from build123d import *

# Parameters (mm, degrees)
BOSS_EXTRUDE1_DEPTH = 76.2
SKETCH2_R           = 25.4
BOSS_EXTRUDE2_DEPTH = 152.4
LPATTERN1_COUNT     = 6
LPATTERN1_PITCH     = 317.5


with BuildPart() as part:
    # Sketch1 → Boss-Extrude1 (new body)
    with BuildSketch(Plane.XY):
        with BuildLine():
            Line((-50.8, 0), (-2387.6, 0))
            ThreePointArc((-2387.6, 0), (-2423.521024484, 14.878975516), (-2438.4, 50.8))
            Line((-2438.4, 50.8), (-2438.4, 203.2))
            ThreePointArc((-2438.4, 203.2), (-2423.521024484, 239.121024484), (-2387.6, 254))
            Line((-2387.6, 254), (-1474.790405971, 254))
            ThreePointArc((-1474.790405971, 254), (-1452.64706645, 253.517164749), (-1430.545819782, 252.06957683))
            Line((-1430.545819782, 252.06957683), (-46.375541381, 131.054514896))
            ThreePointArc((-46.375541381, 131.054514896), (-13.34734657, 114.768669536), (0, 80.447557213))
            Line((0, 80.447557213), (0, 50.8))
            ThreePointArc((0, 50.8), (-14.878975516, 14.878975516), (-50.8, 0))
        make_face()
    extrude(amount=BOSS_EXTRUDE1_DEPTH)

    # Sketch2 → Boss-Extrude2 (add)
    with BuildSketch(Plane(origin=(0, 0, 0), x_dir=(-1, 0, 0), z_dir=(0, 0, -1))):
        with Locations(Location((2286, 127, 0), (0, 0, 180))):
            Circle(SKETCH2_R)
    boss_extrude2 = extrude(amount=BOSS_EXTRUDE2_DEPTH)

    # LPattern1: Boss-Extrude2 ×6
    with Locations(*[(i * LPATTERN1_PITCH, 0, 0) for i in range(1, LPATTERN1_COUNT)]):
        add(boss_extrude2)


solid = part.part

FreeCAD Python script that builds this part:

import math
import FreeCAD as App
import Part
import Sketcher
Q = App.Units.Quantity

doc = App.newDocument("Part")
body = doc.addObject("PartDesign::Body", "Body")

sketch1 = body.newObject("Sketcher::SketchObject", "Sketch")
sketch1.AttachmentSupport = (doc.getObject("XY_Plane"), [""])
sketch1.MapMode = "FlatFace"
sketch1.addGeometry(Part.LineSegment(App.Vector(-2388, 0, 0), App.Vector(-51, 0, 0)), False)
sketch1.addGeometry(Part.ArcOfCircle(Part.Circle(App.Vector(-51, 51, 0), App.Vector(0, 0, 1), 51), math.radians(-90), math.radians(0)), False)
sketch1.addGeometry(Part.LineSegment(App.Vector(0, 51, 0), App.Vector(0, 80, 0)), False)
sketch1.addGeometry(Part.ArcOfCircle(Part.Circle(App.Vector(-51, 80, 0), App.Vector(0, 0, 1), 51), math.radians(0), math.radians(85)), False)
sketch1.addGeometry(Part.LineSegment(App.Vector(-46, 131, 0), App.Vector(-1431, 252, 0)), False)
sketch1.addGeometry(Part.ArcOfCircle(Part.Circle(App.Vector(-1475, -254, 0), App.Vector(0, 0, 1), 508), math.radians(85), math.radians(90)), False)
sketch1.addGeometry(Part.LineSegment(App.Vector(-1475, 254, 0), App.Vector(-2388, 254, 0)), False)
sketch1.addGeometry(Part.ArcOfCircle(Part.Circle(App.Vector(-2388, 203, 0), App.Vector(0, 0, 1), 51), math.radians(90), math.radians(180)), False)
sketch1.addGeometry(Part.LineSegment(App.Vector(-2438, 203, 0), App.Vector(-2438, 51, 0)), False)
sketch1.addGeometry(Part.ArcOfCircle(Part.Circle(App.Vector(-2388, 51, 0), App.Vector(0, 0, 1), 51), math.radians(-180), math.radians(-90)), False)
sketch1.addConstraint(Sketcher.Constraint("Tangent", 0, 2, 1, 1))
sketch1.addConstraint(Sketcher.Constraint("Tangent", 1, 2, 2, 1))
sketch1.addConstraint(Sketcher.Constraint("Tangent", 2, 2, 3, 1))
sketch1.addConstraint(Sketcher.Constraint("Tangent", 3, 2, 4, 1))
sketch1.addConstraint(Sketcher.Constraint("Tangent", 4, 2, 5, 1))
sketch1.addConstraint(Sketcher.Constraint("Tangent", 5, 2, 6, 1))
sketch1.addConstraint(Sketcher.Constraint("Tangent", 6, 2, 7, 1))
sketch1.addConstraint(Sketcher.Constraint("Tangent", 7, 2, 8, 1))
sketch1.addConstraint(Sketcher.Constraint("Tangent", 8, 2, 9, 1))
sketch1.addConstraint(Sketcher.Constraint("Tangent", 9, 2, 0, 1))
sketch1.addConstraint(Sketcher.Constraint("Horizontal", 0))
sketch1.addConstraint(Sketcher.Constraint("Vertical", 2))
sketch1.addConstraint(Sketcher.Constraint("Horizontal", 6))
sketch1.addConstraint(Sketcher.Constraint("Vertical", 8))
sketch1.addConstraint(Sketcher.Constraint("Equal", 1, 3))
sketch1.addConstraint(Sketcher.Constraint("Equal", 3, 7))
sketch1.addConstraint(Sketcher.Constraint("Equal", 7, 9))
sketch1.addConstraint(Sketcher.Constraint("PointOnObject", 0, 2, -1))
sketch1.addConstraint(Sketcher.Constraint("PointOnObject", 1, 2, -2))
sketch1.addConstraint(Sketcher.Constraint("Radius", 1, Q("2 in")))
sketch1.addConstraint(Sketcher.Constraint("Radius", 5, Q("20 in")))
sketch1.addConstraint(Sketcher.Constraint("DistanceX", 0, 1, 0, 2, Q("92 in")))
sketch1.addConstraint(Sketcher.Constraint("DistanceY", 8, 2, 8, 1, Q("6 in")))
sketch1.addConstraint(Sketcher.Constraint("DistanceX", 6, 2, 6, 1, Q("912.809594 mm")))
sketch1.addConstraint(Sketcher.Constraint("DistanceY", 2, 1, 2, 2, Q("29.647557 mm")))
pad1 = body.newObject("PartDesign::Pad", "Pad")
pad1.Profile = sketch1
pad1.Length = Q("3 in")

sketch2 = body.newObject("Sketcher::SketchObject", "Sketch001")
sketch2.AttachmentSupport = (doc.getObject("XY_Plane"), [""])
sketch2.MapMode = "FlatFace"
sketch2.addGeometry(Part.Circle(App.Vector(-2286, 127, 0), App.Vector(0, 0, 1), 25), False)
sketch2.addConstraint(Sketcher.Constraint("Diameter", 0, Q("2 in")))
sketch2.addConstraint(Sketcher.Constraint("DistanceX", 0, 3, -1, 1, Q("90 in")))
sketch2.addConstraint(Sketcher.Constraint("DistanceY", -1, 1, 0, 3, Q("5 in")))
pad2 = body.newObject("PartDesign::Pad", "Pad001")
pad2.Profile = sketch2
pad2.Length = Q("6 in")
pad2.Reversed = True
doc.recompute()

linearpattern = body.newObject("PartDesign::LinearPattern", "LinearPattern")
linearpattern.Originals = [pad2]
linearpattern.Direction = (doc.getObject("X_Axis"), [""])
linearpattern.Mode = "offset"
linearpattern.Offset = Q("12.5 in")
linearpattern.Occurrences = 6
body.Tip = linearpattern

doc.recompute()
